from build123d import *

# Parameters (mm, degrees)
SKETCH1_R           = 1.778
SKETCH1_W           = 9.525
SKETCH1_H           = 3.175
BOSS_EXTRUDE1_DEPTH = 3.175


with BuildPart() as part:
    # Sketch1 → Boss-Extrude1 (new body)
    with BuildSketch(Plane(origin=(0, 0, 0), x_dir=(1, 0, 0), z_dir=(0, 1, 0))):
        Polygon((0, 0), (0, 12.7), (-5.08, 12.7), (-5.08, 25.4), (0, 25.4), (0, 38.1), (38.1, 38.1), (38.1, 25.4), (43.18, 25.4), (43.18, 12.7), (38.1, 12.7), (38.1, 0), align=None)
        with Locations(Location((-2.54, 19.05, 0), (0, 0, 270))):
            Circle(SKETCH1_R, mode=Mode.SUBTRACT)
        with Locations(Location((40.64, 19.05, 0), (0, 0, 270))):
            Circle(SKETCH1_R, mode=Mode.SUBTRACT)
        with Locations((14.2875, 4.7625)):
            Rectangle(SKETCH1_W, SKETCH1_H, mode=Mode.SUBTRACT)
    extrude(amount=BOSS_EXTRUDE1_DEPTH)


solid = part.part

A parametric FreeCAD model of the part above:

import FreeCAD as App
import Part
import Sketcher

V = App.Vector
Q = App.Units.Quantity

doc = App.newDocument("Part")
body = doc.addObject("PartDesign::Body", "Body")

sketch1 = body.newObject("Sketcher::SketchObject", "Sketch")
sketch1.AttachmentSupport = (doc.getObject("XZ_Plane"), [""])
sketch1.MapMode = "FlatFace"
sketch1.addGeometry([
    Part.LineSegment(V(0, -12.7, 0), V(0, 0, 0)),
    Part.LineSegment(V(0, 0, 0), V(38.1, 0, 0)),
    Part.LineSegment(V(38.1, 0, 0), V(38.1, -12.7, 0)),
    Part.LineSegment(V(38.1, -12.7, 0), V(43.2, -12.7, 0)),
    Part.LineSegment(V(43.2, -12.7, 0), V(43.2, -25.4, 0)),
    Part.LineSegment(V(43.2, -25.4, 0), V(38.1, -25.4, 0)),
    Part.LineSegment(V(38.1, -25.4, 0), V(38.1, -38.1, 0)),
    Part.LineSegment(V(38.1, -38.1, 0), V(0, -38.1, 0)),
    Part.LineSegment(V(0, -38.1, 0), V(0, -25.4, 0)),
    Part.LineSegment(V(0, -25.4, 0), V(-5.1, -25.4, 0)),
    Part.LineSegment(V(-5.1, -25.4, 0), V(-5.1, -12.7, 0)),
    Part.LineSegment(V(-5.1, -12.7, 0), V(0, -12.7, 0)),
    Part.LineSegment(V(9.5, -3.2, 0), V(9.5, -6.3, 0)),
    Part.LineSegment(V(9.5, -6.3, 0), V(19.1, -6.3, 0)),
    Part.LineSegment(V(19.1, -6.3, 0), V(19.1, -3.2, 0)),
    Part.LineSegment(V(19.1, -3.2, 0), V(9.5, -3.2, 0)),
    Part.Circle(V(40.6, -19.1, 0), V(0, 0, 1), 1.8),
    Part.Circle(V(-2.5, -19.1, 0), V(0, 0, 1), 1.8),
], False)
sketch1.addConstraint([
    Sketcher.Constraint("Coincident", 0, 2, 1, 1),
    Sketcher.Constraint("Coincident", 1, 2, 2, 1),
    Sketcher.Constraint("Coincident", 2, 2, 3, 1),
    Sketcher.Constraint("Coincident", 3, 2, 4, 1),
    Sketcher.Constraint("Coincident", 4, 2, 5, 1),
    Sketcher.Constraint("Coincident", 5, 2, 6, 1),
    Sketcher.Constraint("Coincident", 6, 2, 7, 1),
    Sketcher.Constraint("Coincident", 7, 2, 8, 1),
    Sketcher.Constraint("Coincident", 8, 2, 9, 1),
    Sketcher.Constraint("Coincident", 9, 2, 10, 1),
    Sketcher.Constraint("Coincident", 10, 2, 11, 1),
    Sketcher.Constraint("Coincident", 11, 2, 0, 1),
    Sketcher.Constraint("Coincident", 12, 2, 13, 1),
    Sketcher.Constraint("Coincident", 13, 2, 14, 1),
    Sketcher.Constraint("Coincident", 14, 2, 15, 1),
    Sketcher.Constraint("Coincident", 15, 2, 12, 1),
    Sketcher.Constraint("Vertical", 0),
    Sketcher.Constraint("Horizontal", 1),
    Sketcher.Constraint("Vertical", 2),
    Sketcher.Constraint("Horizontal", 3),
    Sketcher.Constraint("Vertical", 4),
    Sketcher.Constraint("Horizontal", 5),
    Sketcher.Constraint("Vertical", 6),
    Sketcher.Constraint("Horizontal", 7),
    Sketcher.Constraint("Vertical", 8),
    Sketcher.Constraint("Horizontal", 9),
    Sketcher.Constraint("Vertical", 10),
    Sketcher.Constraint("Horizontal", 11),
    Sketcher.Constraint("Vertical", 12),
    Sketcher.Constraint("Horizontal", 13),
    Sketcher.Constraint("Vertical", 14),
    Sketcher.Constraint("Horizontal", 15),
    Sketcher.Constraint("Coincident", 0, 2, -1, 1),
    Sketcher.Constraint("Equal", 16, 17),
    Sketcher.Constraint("PointOnObject", 7, 2, -2),
    Sketcher.Constraint("Horizontal", 16, 3, 17, 3),
    Sketcher.Constraint("Horizontal", 5, 2, 8, 2),
    Sketcher.Constraint("Horizontal", 3, 2, 10, 2),
    Sketcher.Constraint("Vertical", 2, 2, 5, 2),
    Sketcher.Constraint("Equal", 5, 9),
    Sketcher.Constraint("Equal", 2, 4),
    Sketcher.Constraint("Equal", 4, 6),
    Sketcher.Constraint("Diameter", 16, Q("0.14 in")),
    Sketcher.Constraint("DistanceX", 1, 1, 1, 2, Q("1.5 in")),
    Sketcher.Constraint("DistanceX", 3, 1, 3, 2, Q("0.2 in")),
    Sketcher.Constraint("DistanceY", 0, 1, 0, 2, Q("0.5 in")),
    Sketcher.Constraint("DistanceX", -1, 1, 16, 3, Q("1.6 in")),
    Sketcher.Constraint("DistanceX", 17, 3, -1, 1, Q("0.1 in")),
    Sketcher.Constraint("DistanceY", 17, 3, 12, 2, Q("0.5 in")),
    Sketcher.Constraint("DistanceX", 13, 1, 13, 2, Q("0.375 in")),
    Sketcher.Constraint("DistanceY", 12, 2, 12, 1, Q("0.125 in")),
    Sketcher.Constraint("DistanceY", 16, 3, -1, 1, Q("0.75 in")),
    Sketcher.Constraint("DistanceX", -1, 1, 13, 2, Q("0.75 in")),
])
pad1 = body.newObject("PartDesign::Pad", "Pad")
pad1.Profile = sketch1
pad1.Length = Q("0.125 in")
pad1.Reversed = True

doc.recompute()
